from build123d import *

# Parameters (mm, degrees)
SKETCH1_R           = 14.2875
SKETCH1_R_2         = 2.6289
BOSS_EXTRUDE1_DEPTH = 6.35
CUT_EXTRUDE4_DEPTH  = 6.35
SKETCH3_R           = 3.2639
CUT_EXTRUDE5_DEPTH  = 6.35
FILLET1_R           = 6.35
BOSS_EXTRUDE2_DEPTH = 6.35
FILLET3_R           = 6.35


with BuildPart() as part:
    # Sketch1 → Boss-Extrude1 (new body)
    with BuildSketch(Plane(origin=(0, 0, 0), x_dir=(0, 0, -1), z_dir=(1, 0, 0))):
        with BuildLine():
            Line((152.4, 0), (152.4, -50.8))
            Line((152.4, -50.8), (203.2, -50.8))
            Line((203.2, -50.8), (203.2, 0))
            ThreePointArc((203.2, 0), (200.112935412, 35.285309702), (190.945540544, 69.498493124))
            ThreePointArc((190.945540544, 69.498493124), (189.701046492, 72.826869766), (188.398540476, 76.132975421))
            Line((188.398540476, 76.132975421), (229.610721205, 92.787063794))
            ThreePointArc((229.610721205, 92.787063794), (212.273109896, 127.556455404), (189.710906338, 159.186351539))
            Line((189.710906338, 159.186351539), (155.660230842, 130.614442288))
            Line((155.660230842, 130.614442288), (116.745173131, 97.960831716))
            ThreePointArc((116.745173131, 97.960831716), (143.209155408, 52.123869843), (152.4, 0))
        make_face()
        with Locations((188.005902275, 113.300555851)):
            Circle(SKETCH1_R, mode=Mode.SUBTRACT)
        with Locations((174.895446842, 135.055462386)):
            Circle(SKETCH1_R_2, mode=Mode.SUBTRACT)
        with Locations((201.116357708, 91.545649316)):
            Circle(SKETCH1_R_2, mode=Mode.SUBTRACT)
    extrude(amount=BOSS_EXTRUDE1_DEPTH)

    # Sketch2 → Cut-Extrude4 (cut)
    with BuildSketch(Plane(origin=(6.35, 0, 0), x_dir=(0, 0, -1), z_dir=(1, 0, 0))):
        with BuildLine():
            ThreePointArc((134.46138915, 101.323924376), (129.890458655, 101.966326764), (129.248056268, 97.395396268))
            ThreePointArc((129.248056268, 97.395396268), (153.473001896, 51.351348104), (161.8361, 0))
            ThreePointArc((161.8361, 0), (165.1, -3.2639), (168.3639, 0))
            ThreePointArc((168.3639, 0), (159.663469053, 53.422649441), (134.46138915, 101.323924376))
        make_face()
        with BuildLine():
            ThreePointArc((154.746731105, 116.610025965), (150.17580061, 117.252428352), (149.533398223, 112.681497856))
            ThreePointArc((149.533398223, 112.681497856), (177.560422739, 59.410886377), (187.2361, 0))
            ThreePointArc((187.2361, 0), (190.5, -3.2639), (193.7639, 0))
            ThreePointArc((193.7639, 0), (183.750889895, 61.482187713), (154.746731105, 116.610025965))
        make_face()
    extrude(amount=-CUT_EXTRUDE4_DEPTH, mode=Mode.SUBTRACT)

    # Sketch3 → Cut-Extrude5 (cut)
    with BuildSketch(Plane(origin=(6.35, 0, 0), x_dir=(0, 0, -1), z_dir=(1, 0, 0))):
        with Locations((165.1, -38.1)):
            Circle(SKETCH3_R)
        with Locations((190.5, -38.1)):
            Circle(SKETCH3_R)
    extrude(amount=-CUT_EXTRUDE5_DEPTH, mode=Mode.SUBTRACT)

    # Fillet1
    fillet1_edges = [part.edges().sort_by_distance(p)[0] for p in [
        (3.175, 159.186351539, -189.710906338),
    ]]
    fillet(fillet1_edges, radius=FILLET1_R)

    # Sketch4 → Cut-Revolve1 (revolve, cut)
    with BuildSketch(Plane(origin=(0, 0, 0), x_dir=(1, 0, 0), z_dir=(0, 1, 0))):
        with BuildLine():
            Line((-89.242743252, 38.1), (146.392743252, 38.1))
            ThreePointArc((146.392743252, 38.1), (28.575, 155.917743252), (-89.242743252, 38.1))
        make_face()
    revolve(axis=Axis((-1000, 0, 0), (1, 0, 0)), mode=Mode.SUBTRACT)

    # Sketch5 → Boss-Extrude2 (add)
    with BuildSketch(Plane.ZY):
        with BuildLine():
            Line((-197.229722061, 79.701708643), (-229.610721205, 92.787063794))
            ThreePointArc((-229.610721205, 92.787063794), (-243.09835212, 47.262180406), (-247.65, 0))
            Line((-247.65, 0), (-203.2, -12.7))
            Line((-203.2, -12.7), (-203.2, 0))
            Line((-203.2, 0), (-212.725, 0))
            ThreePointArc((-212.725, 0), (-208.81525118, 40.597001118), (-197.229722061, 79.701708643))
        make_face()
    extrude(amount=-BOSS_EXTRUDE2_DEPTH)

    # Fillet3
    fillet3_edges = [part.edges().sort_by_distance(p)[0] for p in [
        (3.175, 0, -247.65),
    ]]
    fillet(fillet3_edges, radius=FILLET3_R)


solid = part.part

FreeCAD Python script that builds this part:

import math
import FreeCAD as App
import Part
import Sketcher
from FreeCAD import Vector
Q = App.Units.Quantity


def edges_at(feature, points):
    """Names of the edges that pass closest to the given points."""
    edges = feature.Shape.Edges
    near = lambda p: min(range(len(edges)), key=lambda i: edges[i].distToShape(Part.Vertex(*p))[0])
    return sorted({f"Edge{near(p) + 1}" for p in points})

doc = App.newDocument("Part")
body = doc.addObject("PartDesign::Body", "Body")

# Sketch on YZ plane
sketch1 = body.newObject("Sketcher::SketchObject", "Sketch")
sketch1.AttachmentSupport = (doc.getObject("YZ_Plane"), [""])
sketch1.MapMode = "FlatFace"
sketch1.addGeometry(Part.LineSegment(Vector(0, -152.4, 0), Vector(-50.8, -152.4, 0)), False)
sketch1.addGeometry(Part.LineSegment(Vector(-50.8, -152.4, 0), Vector(-50.8, -203.2, 0)), False)
sketch1.addGeometry(Part.LineSegment(Vector(-50.8, -203.2, 0), Vector(0, -203.2, 0)), False)
sketch1.addGeometry(Part.ArcOfCircle(Part.Circle(Vector(0, 0, 0), Vector(0, 0, 1), 203.2), math.radians(-90), math.radians(-70)), False)
sketch1.addGeometry(Part.ArcOfCircle(Part.Circle(Vector(0, 0, 0), Vector(0, 0, 1), 203.2), math.radians(-70), math.radians(-68)), False)
sketch1.addGeometry(Part.LineSegment(Vector(76.1, -188.4, 0), Vector(92.8, -229.6, 0)), False)
sketch1.addGeometry(Part.ArcOfCircle(Part.Circle(Vector(0, 0, 0), Vector(0, 0, 1), 247.6), math.radians(-68), math.radians(-50)), False)
sketch1.addGeometry(Part.LineSegment(Vector(159.2, -189.7, 0), Vector(130.6, -155.7, 0)), False)
sketch1.addGeometry(Part.LineSegment(Vector(130.6, -155.7, 0), Vector(98, -116.7, 0)), False)
sketch1.addGeometry(Part.ArcOfCircle(Part.Circle(Vector(0, 0, 0), Vector(0, 0, 1), 152.4), math.radians(-90), math.radians(-50)), False)
sketch1.addGeometry(Part.Circle(Vector(91.5, -201.1, 0), Vector(0, 0, 1), 2.6), False)
sketch1.addGeometry(Part.Circle(Vector(135.1, -174.9, 0), Vector(0, 0, 1), 2.6), False)
sketch1.addGeometry(Part.Circle(Vector(113.3, -188, 0), Vector(0, 0, 1), 14.3), False)
sketch1.addConstraint(Sketcher.Constraint("Coincident", 0, 2, 1, 1))
sketch1.addConstraint(Sketcher.Constraint("Coincident", 1, 2, 2, 1))
sketch1.addConstraint(Sketcher.Constraint("Tangent", 2, 2, 3, 1))
sketch1.addConstraint(Sketcher.Constraint("Tangent", 3, 2, 4, 1))
sketch1.addConstraint(Sketcher.Constraint("Coincident", 4, 2, 5, 1))
sketch1.addConstraint(Sketcher.Constraint("Coincident", 5, 2, 6, 1))
sketch1.addConstraint(Sketcher.Constraint("Coincident", 6, 2, 7, 1))
sketch1.addConstraint(Sketcher.Constraint("Coincident", 7, 2, 8, 1))
sketch1.addConstraint(Sketcher.Constraint("Coincident", 8, 2, 9, 2))
sketch1.addConstraint(Sketcher.Constraint("Tangent", 9, 1, 0, 1))
sketch1.addConstraint(Sketcher.Constraint("Horizontal", 0))
sketch1.addConstraint(Sketcher.Constraint("Vertical", 1))
sketch1.addConstraint(Sketcher.Constraint("Horizontal", 2))
sketch1.addConstraint(Sketcher.Constraint("Coincident", 3, 3, -1, 1))
sketch1.addConstraint(Sketcher.Constraint("Coincident", 6, 3, -1, 1))
sketch1.addConstraint(Sketcher.Constraint("Coincident", 9, 3, -1, 1))
sketch1.addConstraint(Sketcher.Constraint("Equal", 3, 4))
sketch1.addConstraint(Sketcher.Constraint("Equal", 10, 11))
sketch1.addConstraint(Sketcher.Constraint("Parallel", 7, 8))
sketch1.addConstraint(Sketcher.Constraint("Equal", 2, 1))
sketch1.addConstraint(Sketcher.Constraint("Equal", 5, 7))
sketch1.addConstraint(Sketcher.Constraint("Radius", 3, Q("8 in")))
sketch1.addConstraint(Sketcher.Constraint("Radius", 9, Q("6 in")))
sketch1.addConstraint(Sketcher.Constraint("Radius", 6, Q("9.75 in")))
sketch1.addConstraint(Sketcher.Constraint("Diameter", 10, Q("0.207 in")))
sketch1.addConstraint(Sketcher.Constraint("Diameter", 12, Q("1.125 in")))
sketch1.addConstraint(Sketcher.Constraint("Angle", 7, Q("130 deg")))
sketch1.addConstraint(Sketcher.Constraint("DistanceX", 3, 2, 4, 2, Q("0.2612001 in")))
sketch1.addConstraint(Sketcher.Constraint("DistanceY", 12, 3, 4, 3, Q("188.005902 mm")))
sketch1.addConstraint(Sketcher.Constraint("DistanceX", 5, 2, 11, 3, Q("42.268399 mm")))
sketch1.addConstraint(Sketcher.Constraint("DistanceX", -1, 1, 10, 3, Q("91.545649 mm")))
sketch1.addConstraint(Sketcher.Constraint("DistanceY", 3, 2, -1, 1, Q("190.945541 mm")))
sketch1.addConstraint(Sketcher.Constraint("DistanceY", 5, 2, -1, 1, Q("229.610721 mm")))
sketch1.addConstraint(Sketcher.Constraint("DistanceX", -1, 1, 6, 2, Q("159.186352 mm")))
sketch1.addConstraint(Sketcher.Constraint("DistanceY", 10, 3, 11, 3, Q("26.220911 mm")))
sketch1.addConstraint(Sketcher.Constraint("DistanceX", 4, 2, 12, 3, Q("37.16758 mm")))
sketch1.addConstraint(Sketcher.Constraint("DistanceY", 6, 2, 11, 3, Q("14.815459 mm")))
pad1 = body.newObject("PartDesign::Pad", "Pad")
pad1.Profile = sketch1
pad1.Length = Q("0.25 in")

# Sketch on YZ plane
sketch2 = body.newObject("Sketcher::SketchObject", "Sketch001")
sketch2.AttachmentSupport = (doc.getObject("YZ_Plane"), [""])
sketch2.MapMode = "FlatFace"
sketch2.AttachmentOffset = App.Placement(Vector(0, 0, 0.25 * 25.4), App.Rotation())
sketch2.addGeometry(Part.ArcOfCircle(Part.Circle(Vector(99.4, -131.9, 0), Vector(0, 0, 1), 3.3), math.radians(-53), math.radians(127)), False)
sketch2.addGeometry(Part.ArcOfCircle(Part.Circle(Vector(0, 0, 0), Vector(0, 0, 1), 161.8), math.radians(-90), math.radians(-53)), False)
sketch2.addGeometry(Part.ArcOfCircle(Part.Circle(Vector(0, -165.1, 0), Vector(0, 0, 1), 3.3), math.radians(90), math.radians(270)), False)
sketch2.addGeometry(Part.ArcOfCircle(Part.Circle(Vector(0, 0, 0), Vector(0, 0, 1), 168.4), math.radians(-90), math.radians(-53)), False)
sketch2.addGeometry(Part.ArcOfCircle(Part.Circle(Vector(114.6, -152.1, 0), Vector(0, 0, 1), 3.3), math.radians(-53), math.radians(127)), False)
sketch2.addGeometry(Part.ArcOfCircle(Part.Circle(Vector(0, 0, 0), Vector(0, 0, 1), 187.2), math.radians(-90), math.radians(-53)), False)
sketch2.addGeometry(Part.ArcOfCircle(Part.Circle(Vector(0, -190.5, 0), Vector(0, 0, 1), 3.3), math.radians(90), math.radians(270)), False)
sketch2.addGeometry(Part.ArcOfCircle(Part.Circle(Vector(0, 0, 0), Vector(0, 0, 1), 193.8), math.radians(-90), math.radians(-53)), False)
sketch2.addConstraint(Sketcher.Constraint("Tangent", 0, 2, 1, 2))
sketch2.addConstraint(Sketcher.Constraint("Tangent", 1, 1, 2, 1))
sketch2.addConstraint(Sketcher.Constraint("Tangent", 2, 2, 3, 1))
sketch2.addConstraint(Sketcher.Constraint("Tangent", 3, 2, 0, 1))
sketch2.addConstraint(Sketcher.Constraint("Tangent", 4, 2, 5, 2))
sketch2.addConstraint(Sketcher.Constraint("Tangent", 5, 1, 6, 1))
sketch2.addConstraint(Sketcher.Constraint("Tangent", 6, 2, 7, 1))
sketch2.addConstraint(Sketcher.Constraint("Tangent", 7, 2, 4, 1))
sketch2.addConstraint(Sketcher.Constraint("Coincident", 1, 3, -1, 1))
sketch2.addConstraint(Sketcher.Constraint("Coincident", 3, 3, -1, 1))
sketch2.addConstraint(Sketcher.Constraint("Coincident", 5, 3, -1, 1))
sketch2.addConstraint(Sketcher.Constraint("Coincident", 7, 3, -1, 1))
sketch2.addConstraint(Sketcher.Constraint("Equal", 2, 4))
sketch2.addConstraint(Sketcher.Constraint("PointOnObject", 2, 3, -2))
sketch2.addConstraint(Sketcher.Constraint("PointOnObject", 6, 3, -2))
sketch2.addConstraint(Sketcher.Constraint("DistanceY", 6, 3, 2, 3, Q("1 in")))
sketch2.addConstraint(Sketcher.Constraint("DistanceY", 2, 3, -1, 1, Q("6.5 in")))
sketch2.addConstraint(Sketcher.Constraint("Radius", 0, Q("0.1285 in")))
sketch2.addConstraint(Sketcher.Constraint("DistanceY", 4, 2, -1, 1, Q("149.533398 mm")))
sketch2.addConstraint(Sketcher.Constraint("DistanceX", 0, 3, 4, 3, Q("15.286102 mm")))
pocket1 = body.newObject("PartDesign::Pocket", "Pocket")
pocket1.Profile = sketch2
pocket1.Length = Q("0.25 in")

# Sketch on YZ plane
sketch3 = body.newObject("Sketcher::SketchObject", "Sketch002")
sketch3.AttachmentSupport = (doc.getObject("YZ_Plane"), [""])
sketch3.MapMode = "FlatFace"
sketch3.AttachmentOffset = App.Placement(Vector(0, 0, 0.25 * 25.4), App.Rotation())
sketch3.addGeometry(Part.Circle(Vector(-38.1, -165.1, 0), Vector(0, 0, 1), 3.3), False)
sketch3.addGeometry(Part.Circle(Vector(-38.1, -190.5, 0), Vector(0, 0, 1), 3.3), False)
sketch3.addConstraint(Sketcher.Constraint("Equal", 0, 1))
sketch3.addConstraint(Sketcher.Constraint("Vertical", 0, 3, 1, 3))
sketch3.addConstraint(Sketcher.Constraint("Diameter", 0, Q("0.257 in")))
sketch3.addConstraint(Sketcher.Constraint("DistanceY", 1, 3, 0, 3, Q("1 in")))
sketch3.addConstraint(Sketcher.Constraint("DistanceX", 0, 3, -1, 1, Q("1.5 in")))
sketch3.addConstraint(Sketcher.Constraint("DistanceY", 0, 3, -1, 1, Q("6.5 in")))
pocket2 = body.newObject("PartDesign::Pocket", "Pocket001")
pocket2.Profile = sketch3
pocket2.Length = Q("0.25 in")
doc.recompute()

fillet = body.newObject("PartDesign::Fillet", "Fillet")
fillet.Base = (pocket2, edges_at(pocket2, [(3.175, 159.186, -189.711)]))
fillet.Radius = Q("0.25 in")

# Sketch on XZ plane
sketch4 = body.newObject("Sketcher::SketchObject", "Sketch003")
sketch4.AttachmentSupport = (doc.getObject("XZ_Plane"), [""])
sketch4.MapMode = "FlatFace"
sketch4.addGeometry(Part.LineSegment(Vector(-89, -38, 0), Vector(146, -38, 0)), False)
sketch4.addGeometry(Part.ArcOfCircle(Part.Circle(Vector(29, -38, 0), Vector(0, 0, 1), 118), math.radians(180), math.radians(360)), False)
sketch4.addConstraint(Sketcher.Constraint("Coincident", 0, 1, 1, 1))
sketch4.addConstraint(Sketcher.Constraint("Coincident", 1, 2, 0, 2))
sketch4.addConstraint(Sketcher.Constraint("Horizontal", 0))
sketch4.addConstraint(Sketcher.Constraint("Horizontal", 1, 3, 0, 1))
sketch4.addConstraint(Sketcher.Constraint("DistanceY", 1, 3, -1, 1, Q("1.5 in")))
sketch4.addConstraint(Sketcher.Constraint("DistanceX", -1, 1, 1, 3, Q("1.125 in")))
sketch4.addConstraint(Sketcher.Constraint("Radius", 1, Q("117.817743 mm")))
groove = body.newObject("PartDesign::Groove", "Groove")
groove.Profile = sketch4
groove.ReferenceAxis = (sketch4, ["H_Axis"])
groove.Angle = 360

# Sketch on YZ plane
sketch5 = body.newObject("Sketcher::SketchObject", "Sketch004")
sketch5.AttachmentSupport = (doc.getObject("YZ_Plane"), [""])
sketch5.MapMode = "FlatFace"
sketch5.addGeometry(Part.LineSegment(Vector(80, -197, 0), Vector(93, -230, 0)), False)
sketch5.addGeometry(Part.ArcOfCircle(Part.Circle(Vector(0, 0, 0), Vector(0, 0, 1), 248), math.radians(-90), math.radians(-68)), False)
sketch5.addGeometry(Part.LineSegment(Vector(0, -248, 0), Vector(-13, -203, 0)), False)
sketch5.addGeometry(Part.LineSegment(Vector(-13, -203, 0), Vector(0, -203, 0)), False)
sketch5.addGeometry(Part.LineSegment(Vector(0, -203, 0), Vector(0, -213, 0)), False)
sketch5.addGeometry(Part.ArcOfCircle(Part.Circle(Vector(0, 0, 0), Vector(0, 0, 1), 213), math.radians(-90), math.radians(-68)), False)
sketch5.addConstraint(Sketcher.Constraint("Coincident", 0, 2, 1, 2))
sketch5.addConstraint(Sketcher.Constraint("Coincident", 1, 1, 2, 1))
sketch5.addConstraint(Sketcher.Constraint("Coincident", 2, 2, 3, 1))
sketch5.addConstraint(Sketcher.Constraint("Coincident", 3, 2, 4, 1))
sketch5.addConstraint(Sketcher.Constraint("Coincident", 4, 2, 5, 1))
sketch5.addConstraint(Sketcher.Constraint("Coincident", 5, 2, 0, 1))
sketch5.addConstraint(Sketcher.Constraint("Horizontal", 3))
sketch5.addConstraint(Sketcher.Constraint("Vertical", 4))
sketch5.addConstraint(Sketcher.Constraint("Coincident", 1, 3, -1, 1))
sketch5.addConstraint(Sketcher.Constraint("Coincident", 5, 3, -1, 1))
sketch5.addConstraint(Sketcher.Constraint("PointOnObject", 1, 1, -2))
sketch5.addConstraint(Sketcher.Constraint("PointOnObject", 3, 2, -2))
sketch5.addConstraint(Sketcher.Constraint("Radius", 1, Q("9.75 in")))
sketch5.addConstraint(Sketcher.Constraint("DistanceX", 3, 1, 3, 2, Q("0.5 in")))
sketch5.addConstraint(Sketcher.Constraint("DistanceY", 2, 2, -1, 1, Q("8 in")))
sketch5.addConstraint(Sketcher.Constraint("Radius", 5, Q("8.375 in")))
sketch5.addConstraint(Sketcher.Constraint("DistanceY", 0, 2, 5, 2, Q("32.380999 mm")))
sketch5.addConstraint(Sketcher.Constraint("DistanceY", 0, 2, -1, 1, Q("229.610721 mm")))
pad2 = body.newObject("PartDesign::Pad", "Pad001")
pad2.Profile = sketch5
pad2.Length = Q("0.25 in")
doc.recompute()

fillet2 = body.newObject("PartDesign::Fillet", "Fillet001")
fillet2.Base = (pad2, edges_at(pad2, [(3.175, 0, -247.65)]))
fillet2.Radius = Q("0.25 in")

doc.recompute()
